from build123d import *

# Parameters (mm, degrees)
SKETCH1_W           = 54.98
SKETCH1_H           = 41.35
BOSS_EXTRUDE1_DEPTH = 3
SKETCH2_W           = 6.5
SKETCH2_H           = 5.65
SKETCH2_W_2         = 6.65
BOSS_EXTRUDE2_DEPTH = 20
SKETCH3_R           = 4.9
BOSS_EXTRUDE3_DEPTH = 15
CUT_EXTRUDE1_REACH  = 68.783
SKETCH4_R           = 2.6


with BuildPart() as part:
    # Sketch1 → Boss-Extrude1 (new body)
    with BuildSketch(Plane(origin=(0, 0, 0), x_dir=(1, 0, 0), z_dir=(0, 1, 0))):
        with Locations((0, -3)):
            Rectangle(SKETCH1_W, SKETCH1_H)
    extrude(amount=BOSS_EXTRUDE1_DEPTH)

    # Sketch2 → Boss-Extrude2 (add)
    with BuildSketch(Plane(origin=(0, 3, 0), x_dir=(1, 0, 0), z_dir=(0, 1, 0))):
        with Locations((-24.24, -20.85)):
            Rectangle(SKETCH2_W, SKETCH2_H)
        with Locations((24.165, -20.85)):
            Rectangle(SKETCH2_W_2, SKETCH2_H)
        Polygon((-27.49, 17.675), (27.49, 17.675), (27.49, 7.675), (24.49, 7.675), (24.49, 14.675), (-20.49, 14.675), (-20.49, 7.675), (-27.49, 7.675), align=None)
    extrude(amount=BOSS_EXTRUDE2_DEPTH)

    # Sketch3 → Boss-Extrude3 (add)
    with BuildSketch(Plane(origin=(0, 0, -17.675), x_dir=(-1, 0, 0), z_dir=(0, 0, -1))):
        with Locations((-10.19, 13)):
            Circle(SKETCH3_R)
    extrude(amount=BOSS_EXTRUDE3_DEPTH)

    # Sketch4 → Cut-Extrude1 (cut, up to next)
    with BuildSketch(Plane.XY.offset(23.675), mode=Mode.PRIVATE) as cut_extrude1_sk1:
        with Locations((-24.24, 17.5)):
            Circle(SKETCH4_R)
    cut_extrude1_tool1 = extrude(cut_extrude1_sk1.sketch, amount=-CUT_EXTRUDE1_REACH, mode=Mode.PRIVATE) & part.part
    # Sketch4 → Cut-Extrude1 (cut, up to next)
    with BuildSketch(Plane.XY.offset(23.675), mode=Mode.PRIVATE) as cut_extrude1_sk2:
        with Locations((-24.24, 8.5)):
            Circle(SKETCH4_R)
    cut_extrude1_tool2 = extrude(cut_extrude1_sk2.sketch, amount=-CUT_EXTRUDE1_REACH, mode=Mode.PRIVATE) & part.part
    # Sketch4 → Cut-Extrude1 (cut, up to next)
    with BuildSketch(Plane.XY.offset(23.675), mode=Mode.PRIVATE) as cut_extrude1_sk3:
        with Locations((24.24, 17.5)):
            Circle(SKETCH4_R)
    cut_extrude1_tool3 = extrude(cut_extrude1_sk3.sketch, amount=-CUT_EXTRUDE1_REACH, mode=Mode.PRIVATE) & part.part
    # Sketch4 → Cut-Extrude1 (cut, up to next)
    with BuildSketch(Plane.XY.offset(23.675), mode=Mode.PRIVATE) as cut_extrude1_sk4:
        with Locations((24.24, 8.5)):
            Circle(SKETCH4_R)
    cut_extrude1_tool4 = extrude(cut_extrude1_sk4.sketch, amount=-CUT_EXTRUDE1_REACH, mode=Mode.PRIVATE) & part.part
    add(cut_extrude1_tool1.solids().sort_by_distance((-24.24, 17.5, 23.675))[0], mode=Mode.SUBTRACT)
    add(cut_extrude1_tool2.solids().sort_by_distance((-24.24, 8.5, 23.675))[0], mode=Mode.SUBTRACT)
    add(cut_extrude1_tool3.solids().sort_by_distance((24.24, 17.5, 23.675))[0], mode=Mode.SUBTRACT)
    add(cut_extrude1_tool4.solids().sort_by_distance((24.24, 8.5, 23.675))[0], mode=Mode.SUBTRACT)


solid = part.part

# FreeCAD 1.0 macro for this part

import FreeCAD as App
import Part
import Sketcher
from FreeCAD import Vector

doc = App.newDocument("Part")
body = doc.addObject("PartDesign::Body", "Body")

# Sketch on XZ plane
sketch1 = body.newObject("Sketcher::SketchObject", "Sketch")
sketch1.AttachmentSupport = (doc.getObject("XZ_Plane"), [""])
sketch1.MapMode = "FlatFace"
sketch1.addGeometry(Part.LineSegment(Vector(-27.49, -17.675, 0), Vector(-27.49, 23.675, 0)), False)
sketch1.addGeometry(Part.LineSegment(Vector(-27.49, 23.675, 0), Vector(27.49, 23.675, 0)), False)
sketch1.addGeometry(Part.LineSegment(Vector(27.49, 23.675, 0), Vector(27.49, -17.675, 0)), False)
sketch1.addGeometry(Part.LineSegment(Vector(27.49, -17.675, 0), Vector(-27.49, -17.675, 0)), False)
sketch1.addConstraint(Sketcher.Constraint("Coincident", 0, 2, 1, 1))
sketch1.addConstraint(Sketcher.Constraint("Coincident", 1, 2, 2, 1))
sketch1.addConstraint(Sketcher.Constraint("Coincident", 2, 2, 3, 1))
sketch1.addConstraint(Sketcher.Constraint("Coincident", 3, 2, 0, 1))
sketch1.addConstraint(Sketcher.Constraint("Vertical", 0))
sketch1.addConstraint(Sketcher.Constraint("Horizontal", 1))
sketch1.addConstraint(Sketcher.Constraint("Vertical", 2))
sketch1.addConstraint(Sketcher.Constraint("Horizontal", 3))
sketch1.addConstraint(Sketcher.Constraint("DistanceX", 1, 1, 1, 2, 54.98))
sketch1.addConstraint(Sketcher.Constraint("DistanceY", 0, 1, 0, 2, 41.35))
sketch1.addConstraint(Sketcher.Constraint("DistanceX", 0, 2, -1, 1, 27.49))
sketch1.addConstraint(Sketcher.Constraint("DistanceY", -1, 1, 0, 2, 23.675))
pad1 = body.newObject("PartDesign::Pad", "Pad")
pad1.Profile = sketch1
pad1.Length = 3
pad1.Reversed = True

# Sketch on XZ plane
sketch2 = body.newObject("Sketcher::SketchObject", "Sketch001")
sketch2.AttachmentSupport = (doc.getObject("XZ_Plane"), [""])
sketch2.MapMode = "FlatFace"
sketch2.AttachmentOffset = App.Placement(Vector(0, 0, -3), App.Rotation())
sketch2.addGeometry(Part.LineSegment(Vector(-27.49, 18.025, 0), Vector(-27.49, 23.675, 0)), False)
sketch2.addGeometry(Part.LineSegment(Vector(-27.49, 23.675, 0), Vector(-20.99, 23.675, 0)), False)
sketch2.addGeometry(Part.LineSegment(Vector(-20.99, 23.675, 0), Vector(-20.99, 18.025, 0)), False)
sketch2.addGeometry(Part.LineSegment(Vector(-20.99, 18.025, 0), Vector(-27.49, 18.025, 0)), False)
sketch2.addGeometry(Part.LineSegment(Vector(20.84, 18.025, 0), Vector(20.84, 23.675, 0)), False)
sketch2.addGeometry(Part.LineSegment(Vector(20.84, 23.675, 0), Vector(27.49, 23.675, 0)), False)
sketch2.addGeometry(Part.LineSegment(Vector(27.49, 23.675, 0), Vector(27.49, 18.025, 0)), False)
sketch2.addGeometry(Part.LineSegment(Vector(27.49, 18.025, 0), Vector(20.84, 18.025, 0)), False)
sketch2.addGeometry(Part.LineSegment(Vector(27.49, -17.675, 0), Vector(-27.49, -17.675, 0)), False)
sketch2.addGeometry(Part.LineSegment(Vector(-27.49, -17.675, 0), Vector(-27.49, -7.675, 0)), False)
sketch2.addGeometry(Part.LineSegment(Vector(-27.49, -7.675, 0), Vector(-20.49, -7.675, 0)), False)
sketch2.addGeometry(Part.LineSegment(Vector(-20.49, -7.675, 0), Vector(-20.49, -14.675, 0)), False)
sketch2.addGeometry(Part.LineSegment(Vector(-20.49, -14.675, 0), Vector(24.49, -14.675, 0)), False)
sketch2.addGeometry(Part.LineSegment(Vector(24.49, -14.675, 0), Vector(24.49, -7.675, 0)), False)
sketch2.addGeometry(Part.LineSegment(Vector(24.49, -7.675, 0), Vector(27.49, -7.675, 0)), False)
sketch2.addGeometry(Part.LineSegment(Vector(27.49, -7.675, 0), Vector(27.49, -17.675, 0)), False)
sketch2.addConstraint(Sketcher.Constraint("Coincident", 0, 2, 1, 1))
sketch2.addConstraint(Sketcher.Constraint("Coincident", 1, 2, 2, 1))
sketch2.addConstraint(Sketcher.Constraint("Coincident", 2, 2, 3, 1))
sketch2.addConstraint(Sketcher.Constraint("Coincident", 3, 2, 0, 1))
sketch2.addConstraint(Sketcher.Constraint("Coincident", 4, 2, 5, 1))
sketch2.addConstraint(Sketcher.Constraint("Coincident", 5, 2, 6, 1))
sketch2.addConstraint(Sketcher.Constraint("Coincident", 6, 2, 7, 1))
sketch2.addConstraint(Sketcher.Constraint("Coincident", 7, 2, 4, 1))
sketch2.addConstraint(Sketcher.Constraint("Coincident", 8, 2, 9, 1))
sketch2.addConstraint(Sketcher.Constraint("Coincident", 9, 2, 10, 1))
sketch2.addConstraint(Sketcher.Constraint("Coincident", 10, 2, 11, 1))
sketch2.addConstraint(Sketcher.Constraint("Coincident", 11, 2, 12, 1))
sketch2.addConstraint(Sketcher.Constraint("Coincident", 12, 2, 13, 1))
sketch2.addConstraint(Sketcher.Constraint("Coincident", 13, 2, 14, 1))
sketch2.addConstraint(Sketcher.Constraint("Coincident", 14, 2, 15, 1))
sketch2.addConstraint(Sketcher.Constraint("Coincident", 15, 2, 8, 1))
sketch2.addConstraint(Sketcher.Constraint("Vertical", 0))
sketch2.addConstraint(Sketcher.Constraint("Horizontal", 1))
sketch2.addConstraint(Sketcher.Constraint("Vertical", 2))
sketch2.addConstraint(Sketcher.Constraint("Horizontal", 3))
sketch2.addConstraint(Sketcher.Constraint("Vertical", 4))
sketch2.addConstraint(Sketcher.Constraint("Horizontal", 5))
sketch2.addConstraint(Sketcher.Constraint("Vertical", 6))
sketch2.addConstraint(Sketcher.Constraint("Horizontal", 7))
sketch2.addConstraint(Sketcher.Constraint("Horizontal", 8))
sketch2.addConstraint(Sketcher.Constraint("Vertical", 9))
sketch2.addConstraint(Sketcher.Constraint("Horizontal", 10))
sketch2.addConstraint(Sketcher.Constraint("Vertical", 11))
sketch2.addConstraint(Sketcher.Constraint("Horizontal", 12))
sketch2.addConstraint(Sketcher.Constraint("Vertical", 13))
sketch2.addConstraint(Sketcher.Constraint("Horizontal", 14))
sketch2.addConstraint(Sketcher.Constraint("Vertical", 15))
sketch2.addConstraint(Sketcher.Constraint("Symmetric", 0, 2, 5, 2, -2))
sketch2.addConstraint(Sketcher.Constraint("Symmetric", 9, 2, 14, 2, -2))
sketch2.addConstraint(Sketcher.Constraint("Horizontal", 3, 2, 6, 2))
sketch2.addConstraint(Sketcher.Constraint("Vertical", 3, 2, 8, 2))
sketch2.addConstraint(Sketcher.Constraint("Equal", 10, 11))
sketch2.addConstraint(Sketcher.Constraint("DistanceX", 10, 1, 10, 2, 7.0))
sketch2.addConstraint(Sketcher.Constraint("DistanceX", 14, 1, 14, 2, 3.0))
sketch2.addConstraint(Sketcher.Constraint("DistanceY", 9, 1, 9, 2, 10.0))
sketch2.addConstraint(Sketcher.Constraint("DistanceX", 1, 1, 1, 2, 6.5))
sketch2.addConstraint(Sketcher.Constraint("DistanceX", 5, 1, 5, 2, 6.65))
sketch2.addConstraint(Sketcher.Constraint("DistanceX", 8, 2, 8, 1, 54.98))
sketch2.addConstraint(Sketcher.Constraint("DistanceY", 0, 1, 0, 2, 5.65))
sketch2.addConstraint(Sketcher.Constraint("DistanceY", 8, 2, 3, 2, 35.7))
sketch2.addConstraint(Sketcher.Constraint("DistanceY", -1, 1, 0, 2, 23.675))
pad2 = body.newObject("PartDesign::Pad", "Pad001")
pad2.Profile = sketch2
pad2.Length = 20
pad2.Reversed = True

# Sketch on XY plane
sketch3 = body.newObject("Sketcher::SketchObject", "Sketch002")
sketch3.AttachmentSupport = (doc.getObject("XY_Plane"), [""])
sketch3.MapMode = "FlatFace"
sketch3.AttachmentOffset = App.Placement(Vector(0, 0, -17.675), App.Rotation())
sketch3.addGeometry(Part.Circle(Vector(10.19, 13, 0), Vector(0, 0, 1), 4.9), False)
sketch3.addConstraint(Sketcher.Constraint("Diameter", 0, 9.8))
sketch3.addConstraint(Sketcher.Constraint("DistanceY", -1, 1, 0, 3, 13.0))
sketch3.addConstraint(Sketcher.Constraint("DistanceX", -1, 1, 0, 3, 10.19))
pad3 = body.newObject("PartDesign::Pad", "Pad002")
pad3.Profile = sketch3
pad3.Length = 15
pad3.Reversed = True

# Sketch on XY plane
sketch4 = body.newObject("Sketcher::SketchObject", "Sketch003")
sketch4.AttachmentSupport = (doc.getObject("XY_Plane"), [""])
sketch4.MapMode = "FlatFace"
sketch4.AttachmentOffset = App.Placement(Vector(0, 0, 23.675), App.Rotation())
sketch4.addGeometry(Part.Circle(Vector(-24.24, 17.5, 0), Vector(0, 0, 1), 2.6), False)
sketch4.addConstraint(Sketcher.Constraint("Diameter", 0, 5.2))
sketch4.addConstraint(Sketcher.Constraint("DistanceY", -1, 1, 0, 3, 17.5))
sketch4.addConstraint(Sketcher.Constraint("DistanceX", 0, 3, -1, 1, 24.24))
pocket1 = body.newObject("PartDesign::Pocket", "Pocket")
pocket1.Profile = sketch4
pocket1.Type = "UpToFirst"

# Sketch on XY plane
sketch5 = body.newObject("Sketcher::SketchObject", "Sketch004")
sketch5.AttachmentSupport = (doc.getObject("XY_Plane"), [""])
sketch5.MapMode = "FlatFace"
sketch5.AttachmentOffset = App.Placement(Vector(0, 0, 23.675), App.Rotation())
sketch5.addGeometry(Part.Circle(Vector(-24.24, 8.5, 0), Vector(0, 0, 1), 2.6), False)
sketch5.addConstraint(Sketcher.Constraint("Diameter", 0, 5.2))
sketch5.addConstraint(Sketcher.Constraint("DistanceY", -1, 1, 0, 3, 8.5))
sketch5.addConstraint(Sketcher.Constraint("DistanceX", 0, 3, -1, 1, 24.24))
pocket2 = body.newObject("PartDesign::Pocket", "Pocket001")
pocket2.Profile = sketch5
pocket2.Type = "UpToFirst"

# Sketch on XY plane
sketch6 = body.newObject("Sketcher::SketchObject", "Sketch005")
sketch6.AttachmentSupport = (doc.getObject("XY_Plane"), [""])
sketch6.MapMode = "FlatFace"
sketch6.AttachmentOffset = App.Placement(Vector(0, 0, 23.675), App.Rotation())
sketch6.addGeometry(Part.Circle(Vector(24.24, 17.5, 0), Vector(0, 0, 1), 2.6), False)
sketch6.addConstraint(Sketcher.Constraint("Diameter", 0, 5.2))
sketch6.addConstraint(Sketcher.Constraint("DistanceY", -1, 1, 0, 3, 17.5))
sketch6.addConstraint(Sketcher.Constraint("DistanceX", -1, 1, 0, 3, 24.24))
pocket3 = body.newObject("PartDesign::Pocket", "Pocket002")
pocket3.Profile = sketch6
pocket3.Type = "UpToFirst"

# Sketch on XY plane
sketch7 = body.newObject("Sketcher::SketchObject", "Sketch006")
sketch7.AttachmentSupport = (doc.getObject("XY_Plane"), [""])
sketch7.MapMode = "FlatFace"
sketch7.AttachmentOffset = App.Placement(Vector(0, 0, 23.675), App.Rotation())
sketch7.addGeometry(Part.Circle(Vector(24.24, 8.5, 0), Vector(0, 0, 1), 2.6), False)
sketch7.addConstraint(Sketcher.Constraint("Diameter", 0, 5.2))
sketch7.addConstraint(Sketcher.Constraint("DistanceY", -1, 1, 0, 3, 8.5))
sketch7.addConstraint(Sketcher.Constraint("DistanceX", -1, 1, 0, 3, 24.24))
pocket4 = body.newObject("PartDesign::Pocket", "Pocket003")
pocket4.Profile = sketch7
pocket4.Type = "UpToFirst"

doc.recompute()
